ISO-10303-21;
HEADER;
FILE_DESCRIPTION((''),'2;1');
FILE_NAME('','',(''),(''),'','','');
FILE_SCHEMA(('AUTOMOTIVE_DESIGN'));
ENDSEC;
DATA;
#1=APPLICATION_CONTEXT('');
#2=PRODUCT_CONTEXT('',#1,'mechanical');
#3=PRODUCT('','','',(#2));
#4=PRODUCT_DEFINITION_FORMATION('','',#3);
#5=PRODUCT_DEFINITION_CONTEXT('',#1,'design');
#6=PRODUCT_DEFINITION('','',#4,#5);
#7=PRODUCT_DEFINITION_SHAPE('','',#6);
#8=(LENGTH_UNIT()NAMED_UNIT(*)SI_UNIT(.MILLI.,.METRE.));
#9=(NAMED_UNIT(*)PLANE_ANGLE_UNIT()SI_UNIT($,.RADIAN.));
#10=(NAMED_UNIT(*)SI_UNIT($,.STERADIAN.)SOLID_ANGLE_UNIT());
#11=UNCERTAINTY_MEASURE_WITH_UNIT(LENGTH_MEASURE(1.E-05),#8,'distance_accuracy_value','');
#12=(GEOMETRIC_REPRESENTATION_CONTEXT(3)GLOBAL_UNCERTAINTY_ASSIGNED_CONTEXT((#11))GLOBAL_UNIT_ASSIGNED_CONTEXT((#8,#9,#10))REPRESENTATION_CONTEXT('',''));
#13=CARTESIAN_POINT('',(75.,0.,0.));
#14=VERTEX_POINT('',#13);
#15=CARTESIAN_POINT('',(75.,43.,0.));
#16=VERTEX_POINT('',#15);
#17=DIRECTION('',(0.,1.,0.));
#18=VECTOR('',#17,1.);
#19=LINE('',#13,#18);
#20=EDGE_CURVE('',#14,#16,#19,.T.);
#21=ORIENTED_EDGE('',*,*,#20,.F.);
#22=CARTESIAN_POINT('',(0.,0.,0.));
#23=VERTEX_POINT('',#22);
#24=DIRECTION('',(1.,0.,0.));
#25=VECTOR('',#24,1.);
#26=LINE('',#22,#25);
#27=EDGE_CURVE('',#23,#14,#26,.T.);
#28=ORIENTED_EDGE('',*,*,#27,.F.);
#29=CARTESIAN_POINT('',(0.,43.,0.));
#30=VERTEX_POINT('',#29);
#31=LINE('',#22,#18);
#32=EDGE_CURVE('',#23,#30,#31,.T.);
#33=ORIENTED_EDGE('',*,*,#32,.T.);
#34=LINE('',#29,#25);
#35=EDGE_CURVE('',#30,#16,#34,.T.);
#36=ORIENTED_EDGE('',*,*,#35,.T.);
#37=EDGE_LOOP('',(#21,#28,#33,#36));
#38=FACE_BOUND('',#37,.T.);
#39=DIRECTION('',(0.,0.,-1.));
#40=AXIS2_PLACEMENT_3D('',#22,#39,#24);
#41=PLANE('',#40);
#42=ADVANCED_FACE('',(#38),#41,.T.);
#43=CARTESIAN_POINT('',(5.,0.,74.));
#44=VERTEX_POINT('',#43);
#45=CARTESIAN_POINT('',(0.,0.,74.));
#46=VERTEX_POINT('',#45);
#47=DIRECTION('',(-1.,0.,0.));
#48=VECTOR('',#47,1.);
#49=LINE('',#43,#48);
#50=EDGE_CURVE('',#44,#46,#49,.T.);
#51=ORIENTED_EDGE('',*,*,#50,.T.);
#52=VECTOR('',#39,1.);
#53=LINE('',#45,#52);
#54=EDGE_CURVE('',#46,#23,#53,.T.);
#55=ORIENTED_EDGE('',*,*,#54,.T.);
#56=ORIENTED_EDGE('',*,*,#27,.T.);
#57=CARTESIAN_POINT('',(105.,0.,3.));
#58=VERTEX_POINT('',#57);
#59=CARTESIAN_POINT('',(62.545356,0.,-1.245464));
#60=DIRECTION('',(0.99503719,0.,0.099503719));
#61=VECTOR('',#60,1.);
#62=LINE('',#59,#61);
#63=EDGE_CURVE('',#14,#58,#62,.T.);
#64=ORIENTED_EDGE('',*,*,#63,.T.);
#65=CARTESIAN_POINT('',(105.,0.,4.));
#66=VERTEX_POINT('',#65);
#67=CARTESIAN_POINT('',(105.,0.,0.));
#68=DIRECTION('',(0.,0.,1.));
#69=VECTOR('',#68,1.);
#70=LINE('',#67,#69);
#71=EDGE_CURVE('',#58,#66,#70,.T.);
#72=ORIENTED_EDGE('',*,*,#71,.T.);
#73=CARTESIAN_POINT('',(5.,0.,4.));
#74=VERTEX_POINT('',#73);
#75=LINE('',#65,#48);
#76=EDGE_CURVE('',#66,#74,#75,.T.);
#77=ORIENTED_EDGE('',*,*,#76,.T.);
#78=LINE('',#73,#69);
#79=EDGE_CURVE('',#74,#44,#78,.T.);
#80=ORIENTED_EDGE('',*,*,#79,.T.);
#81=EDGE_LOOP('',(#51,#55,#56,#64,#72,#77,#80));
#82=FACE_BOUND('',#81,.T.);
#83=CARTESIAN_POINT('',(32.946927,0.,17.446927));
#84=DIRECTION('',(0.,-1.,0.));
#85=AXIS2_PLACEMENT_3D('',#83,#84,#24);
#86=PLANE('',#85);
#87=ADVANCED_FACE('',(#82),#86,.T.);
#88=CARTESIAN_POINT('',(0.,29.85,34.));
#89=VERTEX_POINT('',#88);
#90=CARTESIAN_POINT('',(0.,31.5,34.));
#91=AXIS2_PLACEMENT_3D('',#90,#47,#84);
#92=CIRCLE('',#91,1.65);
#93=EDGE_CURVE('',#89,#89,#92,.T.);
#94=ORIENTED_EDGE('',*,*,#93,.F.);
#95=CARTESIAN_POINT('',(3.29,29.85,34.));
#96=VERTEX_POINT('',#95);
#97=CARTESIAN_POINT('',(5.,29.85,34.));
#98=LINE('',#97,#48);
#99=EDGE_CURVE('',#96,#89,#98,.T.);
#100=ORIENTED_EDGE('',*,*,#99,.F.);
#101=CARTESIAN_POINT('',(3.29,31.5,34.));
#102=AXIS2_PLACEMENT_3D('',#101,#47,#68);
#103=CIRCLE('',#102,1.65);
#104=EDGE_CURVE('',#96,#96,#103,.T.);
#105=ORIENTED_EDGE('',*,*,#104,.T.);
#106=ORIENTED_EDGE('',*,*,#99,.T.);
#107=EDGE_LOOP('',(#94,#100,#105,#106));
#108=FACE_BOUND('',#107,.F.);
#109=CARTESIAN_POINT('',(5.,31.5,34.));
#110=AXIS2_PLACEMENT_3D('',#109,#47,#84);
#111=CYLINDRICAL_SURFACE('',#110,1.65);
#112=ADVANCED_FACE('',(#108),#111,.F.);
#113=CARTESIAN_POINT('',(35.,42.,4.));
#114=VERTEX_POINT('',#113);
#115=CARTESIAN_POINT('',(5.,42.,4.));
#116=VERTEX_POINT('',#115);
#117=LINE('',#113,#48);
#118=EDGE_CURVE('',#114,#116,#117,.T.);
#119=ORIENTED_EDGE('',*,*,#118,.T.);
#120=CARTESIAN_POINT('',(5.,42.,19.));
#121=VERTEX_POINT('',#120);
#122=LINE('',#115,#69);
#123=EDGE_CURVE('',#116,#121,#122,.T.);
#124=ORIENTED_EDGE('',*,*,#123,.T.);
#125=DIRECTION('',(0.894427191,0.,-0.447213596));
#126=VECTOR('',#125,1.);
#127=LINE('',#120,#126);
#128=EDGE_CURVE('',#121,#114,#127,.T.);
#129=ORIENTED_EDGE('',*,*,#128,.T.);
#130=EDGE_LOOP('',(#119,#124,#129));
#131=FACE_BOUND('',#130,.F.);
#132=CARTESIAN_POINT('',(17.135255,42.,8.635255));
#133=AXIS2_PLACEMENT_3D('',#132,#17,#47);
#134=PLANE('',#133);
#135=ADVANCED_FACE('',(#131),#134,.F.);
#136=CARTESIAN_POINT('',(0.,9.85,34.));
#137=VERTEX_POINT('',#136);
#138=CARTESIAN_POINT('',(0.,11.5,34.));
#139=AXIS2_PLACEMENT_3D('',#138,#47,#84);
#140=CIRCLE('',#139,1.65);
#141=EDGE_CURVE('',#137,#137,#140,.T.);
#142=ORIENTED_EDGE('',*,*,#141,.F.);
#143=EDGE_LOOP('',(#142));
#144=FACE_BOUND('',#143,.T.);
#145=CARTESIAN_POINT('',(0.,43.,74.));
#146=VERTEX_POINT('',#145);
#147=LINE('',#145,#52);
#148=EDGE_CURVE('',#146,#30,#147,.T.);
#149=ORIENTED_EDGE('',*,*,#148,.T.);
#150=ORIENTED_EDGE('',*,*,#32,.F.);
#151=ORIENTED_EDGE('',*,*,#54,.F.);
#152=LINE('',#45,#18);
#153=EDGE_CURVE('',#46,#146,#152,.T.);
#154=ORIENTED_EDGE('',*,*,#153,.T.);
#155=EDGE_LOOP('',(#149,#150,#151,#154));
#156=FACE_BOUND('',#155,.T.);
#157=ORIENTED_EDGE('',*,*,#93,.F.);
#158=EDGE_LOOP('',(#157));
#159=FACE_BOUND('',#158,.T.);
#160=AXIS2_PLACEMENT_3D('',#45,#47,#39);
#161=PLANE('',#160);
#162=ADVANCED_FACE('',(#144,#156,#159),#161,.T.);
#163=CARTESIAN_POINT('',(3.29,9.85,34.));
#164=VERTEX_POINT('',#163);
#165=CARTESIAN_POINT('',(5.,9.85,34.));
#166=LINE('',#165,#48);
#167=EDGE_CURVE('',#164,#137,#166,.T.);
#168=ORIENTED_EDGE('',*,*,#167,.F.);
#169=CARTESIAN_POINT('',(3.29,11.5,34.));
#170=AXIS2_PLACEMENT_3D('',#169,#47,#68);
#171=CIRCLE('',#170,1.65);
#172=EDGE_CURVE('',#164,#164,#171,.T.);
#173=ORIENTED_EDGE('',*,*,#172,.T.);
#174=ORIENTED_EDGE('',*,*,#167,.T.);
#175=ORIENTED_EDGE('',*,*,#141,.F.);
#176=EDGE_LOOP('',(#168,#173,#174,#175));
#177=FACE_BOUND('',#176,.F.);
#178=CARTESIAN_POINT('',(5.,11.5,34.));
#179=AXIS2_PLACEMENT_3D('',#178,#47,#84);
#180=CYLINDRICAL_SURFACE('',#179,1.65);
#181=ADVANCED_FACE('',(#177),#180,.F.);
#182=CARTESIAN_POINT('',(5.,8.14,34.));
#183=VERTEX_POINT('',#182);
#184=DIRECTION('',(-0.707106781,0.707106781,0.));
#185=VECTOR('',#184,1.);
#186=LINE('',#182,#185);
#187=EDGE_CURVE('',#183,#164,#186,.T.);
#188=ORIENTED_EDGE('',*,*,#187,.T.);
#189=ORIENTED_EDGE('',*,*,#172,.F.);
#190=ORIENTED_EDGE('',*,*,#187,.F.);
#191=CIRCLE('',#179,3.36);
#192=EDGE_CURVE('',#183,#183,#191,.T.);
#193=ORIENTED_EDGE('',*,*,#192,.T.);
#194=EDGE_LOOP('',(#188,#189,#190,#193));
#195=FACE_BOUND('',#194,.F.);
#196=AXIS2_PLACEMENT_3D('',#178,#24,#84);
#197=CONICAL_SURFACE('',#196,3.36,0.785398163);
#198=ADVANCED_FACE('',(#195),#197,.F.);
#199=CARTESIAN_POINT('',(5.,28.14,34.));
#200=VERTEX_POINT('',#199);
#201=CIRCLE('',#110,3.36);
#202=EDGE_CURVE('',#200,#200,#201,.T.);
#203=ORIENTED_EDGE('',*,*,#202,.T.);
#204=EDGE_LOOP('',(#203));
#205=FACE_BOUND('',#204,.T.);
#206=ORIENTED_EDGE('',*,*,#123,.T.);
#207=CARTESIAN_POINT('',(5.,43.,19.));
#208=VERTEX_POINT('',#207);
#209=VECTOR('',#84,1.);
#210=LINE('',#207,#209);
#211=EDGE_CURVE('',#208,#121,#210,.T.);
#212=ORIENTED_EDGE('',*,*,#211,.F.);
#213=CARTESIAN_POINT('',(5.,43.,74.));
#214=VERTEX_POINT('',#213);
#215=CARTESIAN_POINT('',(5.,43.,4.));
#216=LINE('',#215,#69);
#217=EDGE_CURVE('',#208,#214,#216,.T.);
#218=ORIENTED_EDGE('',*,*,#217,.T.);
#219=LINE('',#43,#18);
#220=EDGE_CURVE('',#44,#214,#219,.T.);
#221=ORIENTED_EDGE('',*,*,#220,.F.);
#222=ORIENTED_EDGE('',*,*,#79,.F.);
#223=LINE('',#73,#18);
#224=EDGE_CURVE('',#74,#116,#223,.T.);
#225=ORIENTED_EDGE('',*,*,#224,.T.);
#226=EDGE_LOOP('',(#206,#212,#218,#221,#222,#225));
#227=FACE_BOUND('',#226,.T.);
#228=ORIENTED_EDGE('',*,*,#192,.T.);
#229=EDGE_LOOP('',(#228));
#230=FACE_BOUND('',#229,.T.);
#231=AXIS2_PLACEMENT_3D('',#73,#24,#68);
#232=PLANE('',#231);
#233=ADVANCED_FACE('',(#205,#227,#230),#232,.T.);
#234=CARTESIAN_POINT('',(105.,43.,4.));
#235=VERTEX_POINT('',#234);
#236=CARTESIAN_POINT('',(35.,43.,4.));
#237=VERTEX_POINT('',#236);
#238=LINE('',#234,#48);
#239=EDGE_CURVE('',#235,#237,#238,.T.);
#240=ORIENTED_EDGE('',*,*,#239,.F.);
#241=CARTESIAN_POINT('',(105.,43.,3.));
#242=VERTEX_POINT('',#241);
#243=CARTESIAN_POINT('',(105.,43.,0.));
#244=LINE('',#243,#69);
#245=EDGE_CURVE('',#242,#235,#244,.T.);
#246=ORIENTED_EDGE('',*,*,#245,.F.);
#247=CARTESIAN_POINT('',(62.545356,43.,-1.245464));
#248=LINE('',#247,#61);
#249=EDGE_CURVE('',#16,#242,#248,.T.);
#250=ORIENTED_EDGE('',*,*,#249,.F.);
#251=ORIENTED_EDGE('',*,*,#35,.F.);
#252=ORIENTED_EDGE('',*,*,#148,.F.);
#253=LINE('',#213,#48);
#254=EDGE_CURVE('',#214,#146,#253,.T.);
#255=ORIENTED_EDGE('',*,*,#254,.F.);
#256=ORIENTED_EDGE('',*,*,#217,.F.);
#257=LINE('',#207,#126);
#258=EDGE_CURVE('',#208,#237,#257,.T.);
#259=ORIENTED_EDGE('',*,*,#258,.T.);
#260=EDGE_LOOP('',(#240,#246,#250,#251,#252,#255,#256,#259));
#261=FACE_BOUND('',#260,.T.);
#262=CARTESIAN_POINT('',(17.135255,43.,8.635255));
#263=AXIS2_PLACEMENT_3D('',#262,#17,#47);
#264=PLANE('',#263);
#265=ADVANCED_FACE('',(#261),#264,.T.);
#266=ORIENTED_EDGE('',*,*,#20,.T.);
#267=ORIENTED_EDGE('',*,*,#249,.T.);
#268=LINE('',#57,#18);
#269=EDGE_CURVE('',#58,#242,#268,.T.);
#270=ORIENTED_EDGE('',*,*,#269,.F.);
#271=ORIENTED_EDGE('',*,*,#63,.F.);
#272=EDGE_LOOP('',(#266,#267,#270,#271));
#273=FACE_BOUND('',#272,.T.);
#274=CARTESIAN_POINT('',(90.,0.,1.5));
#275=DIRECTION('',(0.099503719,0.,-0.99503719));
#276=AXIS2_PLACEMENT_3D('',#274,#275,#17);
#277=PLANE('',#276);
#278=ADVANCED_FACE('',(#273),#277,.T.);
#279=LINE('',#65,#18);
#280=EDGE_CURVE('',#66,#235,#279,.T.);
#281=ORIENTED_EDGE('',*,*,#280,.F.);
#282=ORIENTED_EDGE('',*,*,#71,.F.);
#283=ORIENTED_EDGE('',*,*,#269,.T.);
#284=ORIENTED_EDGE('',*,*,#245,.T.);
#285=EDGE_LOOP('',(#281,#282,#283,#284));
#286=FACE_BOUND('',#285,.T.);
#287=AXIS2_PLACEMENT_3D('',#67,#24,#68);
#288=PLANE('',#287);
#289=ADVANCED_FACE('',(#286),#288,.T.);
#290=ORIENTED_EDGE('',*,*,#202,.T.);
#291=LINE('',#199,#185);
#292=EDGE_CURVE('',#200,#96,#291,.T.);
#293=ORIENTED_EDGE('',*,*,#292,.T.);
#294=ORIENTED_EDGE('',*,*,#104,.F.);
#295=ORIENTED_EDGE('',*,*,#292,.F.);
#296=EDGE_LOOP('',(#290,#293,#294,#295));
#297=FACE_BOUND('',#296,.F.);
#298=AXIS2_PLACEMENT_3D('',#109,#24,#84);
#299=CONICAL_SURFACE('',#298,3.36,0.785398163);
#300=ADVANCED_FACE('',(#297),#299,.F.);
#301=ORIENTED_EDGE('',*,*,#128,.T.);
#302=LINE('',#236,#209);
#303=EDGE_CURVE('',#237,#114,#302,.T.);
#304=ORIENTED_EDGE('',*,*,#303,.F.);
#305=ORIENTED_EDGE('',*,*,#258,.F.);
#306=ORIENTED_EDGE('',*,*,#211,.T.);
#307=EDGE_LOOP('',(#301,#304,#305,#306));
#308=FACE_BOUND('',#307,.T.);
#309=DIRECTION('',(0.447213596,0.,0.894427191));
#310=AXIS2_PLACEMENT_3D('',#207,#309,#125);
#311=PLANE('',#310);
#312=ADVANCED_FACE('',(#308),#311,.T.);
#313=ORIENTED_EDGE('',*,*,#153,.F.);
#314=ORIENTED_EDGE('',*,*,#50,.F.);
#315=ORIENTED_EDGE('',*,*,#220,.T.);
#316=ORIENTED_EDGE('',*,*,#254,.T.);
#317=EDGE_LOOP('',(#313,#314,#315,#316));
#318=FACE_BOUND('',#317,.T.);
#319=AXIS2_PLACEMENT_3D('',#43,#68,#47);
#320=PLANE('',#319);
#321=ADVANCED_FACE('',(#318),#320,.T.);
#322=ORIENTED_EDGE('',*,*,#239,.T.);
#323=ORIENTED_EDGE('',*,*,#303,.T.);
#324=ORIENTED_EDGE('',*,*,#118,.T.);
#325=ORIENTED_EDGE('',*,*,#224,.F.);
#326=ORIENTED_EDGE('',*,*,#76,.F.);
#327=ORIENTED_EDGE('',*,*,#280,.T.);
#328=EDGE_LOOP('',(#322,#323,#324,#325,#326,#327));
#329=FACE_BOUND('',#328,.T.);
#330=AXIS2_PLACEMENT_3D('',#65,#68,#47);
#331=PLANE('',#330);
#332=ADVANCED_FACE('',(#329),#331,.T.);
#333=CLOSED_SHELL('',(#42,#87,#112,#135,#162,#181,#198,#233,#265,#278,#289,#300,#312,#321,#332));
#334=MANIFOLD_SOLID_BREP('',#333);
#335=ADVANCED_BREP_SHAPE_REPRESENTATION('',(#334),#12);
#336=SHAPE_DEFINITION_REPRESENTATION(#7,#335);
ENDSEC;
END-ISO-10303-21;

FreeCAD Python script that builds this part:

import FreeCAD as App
import Part
import Sketcher


def edges_at(feature, points):
    """Names of the edges that pass closest to the given points."""
    edges = feature.Shape.Edges
    near = lambda p: min(range(len(edges)), key=lambda i: edges[i].distToShape(Part.Vertex(*p))[0])
    return sorted({f"Edge{near(p) + 1}" for p in points})


def add_polygon(sketch, points):
    """Adds a closed chain of lines whose ends are joined by coincident constraints."""
    first, n = sketch.GeometryCount, len(points)
    for a, b in zip(points, points[1:] + points[:1]):
        sketch.addGeometry(Part.LineSegment(App.Vector(*a, 0), App.Vector(*b, 0)), False)
    for i in range(n):
        sketch.addConstraint(Sketcher.Constraint("Coincident", first + i, 2, first + (i + 1) % n, 1))

doc = App.newDocument("Part")
body = doc.addObject("PartDesign::Body", "Body")

sketch1 = body.newObject("Sketcher::SketchObject", "Sketch")
sketch1.AttachmentSupport = (doc.getObject("XZ_Plane"), [""])
sketch1.MapMode = "FlatFace"
add_polygon(sketch1, [(0, 74), (0, 0), (105, 0), (105, 4), (5, 4), (5, 74)])
sketch1.addConstraint(Sketcher.Constraint("Vertical", 0))
sketch1.addConstraint(Sketcher.Constraint("Horizontal", 1))
sketch1.addConstraint(Sketcher.Constraint("Vertical", 2))
sketch1.addConstraint(Sketcher.Constraint("Horizontal", 3))
sketch1.addConstraint(Sketcher.Constraint("Vertical", 4))
sketch1.addConstraint(Sketcher.Constraint("Horizontal", 5))
sketch1.addConstraint(Sketcher.Constraint("Coincident", 0, 2, -1, 1))
sketch1.addConstraint(Sketcher.Constraint("DistanceX", 1, 1, 1, 2, 105.0))
sketch1.addConstraint(Sketcher.Constraint("DistanceX", 3, 2, 3, 1, 100.0))
sketch1.addConstraint(Sketcher.Constraint("DistanceY", 0, 2, 0, 1, 74.0))
sketch1.addConstraint(Sketcher.Constraint("DistanceY", 2, 1, 2, 2, 4.0))
pad1 = body.newObject("PartDesign::Pad", "Pad")
pad1.Profile = sketch1
pad1.Length = 43
pad1.Reversed = True

sketch2 = body.newObject("Sketcher::SketchObject", "Sketch001")
sketch2.AttachmentSupport = (doc.getObject("YZ_Plane"), [""])
sketch2.MapMode = "FlatFace"
sketch2.AttachmentOffset = App.Placement(App.Vector(0, 0, 5), App.Rotation())
sketch2.addGeometry(Part.Circle(App.Vector(31.5, 34, 0), App.Vector(0, 0, 1), 1.6), False)
sketch2.addGeometry(Part.Circle(App.Vector(11.5, 34, 0), App.Vector(0, 0, 1), 1.6), False)
sketch2.addConstraint(Sketcher.Constraint("Equal", 0, 1))
sketch2.addConstraint(Sketcher.Constraint("Horizontal", 0, 3, 1, 3))
sketch2.addConstraint(Sketcher.Constraint("Diameter", 0, 3.3))
sketch2.addConstraint(Sketcher.Constraint("DistanceY", -1, 1, 0, 3, 34.0))
sketch2.addConstraint(Sketcher.Constraint("DistanceX", 1, 3, 0, 3, 20.0))
sketch2.addConstraint(Sketcher.Constraint("DistanceX", -1, 1, 0, 3, 31.5))
doc.recompute()
hole = body.newObject("PartDesign::Hole", "Hole")
hole.Profile = sketch2
hole.ThreadType = "None"
hole.Diameter = 3.3
hole.DepthType = "ThroughAll"
hole.HoleCutType = "Countersink"
hole.HoleCutDiameter = 6.72
hole.HoleCutCountersinkAngle = 90
doc.recompute()

chamfer = body.newObject("PartDesign::Chamfer", "Chamfer")
chamfer.Base = (hole, edges_at(hole, [(105, 21.5, 0)]))
chamfer.ChamferType = "Two distances"
chamfer.Size = 30
chamfer.Size2 = 3

sketch3 = body.newObject("Sketcher::SketchObject", "Sketch002")
sketch3.AttachmentSupport = (doc.getObject("XZ_Plane"), [""])
sketch3.MapMode = "FlatFace"
sketch3.AttachmentOffset = App.Placement(App.Vector(0, 0, -43), App.Rotation())
add_polygon(sketch3, [(35, 4), (5, 4), (5, 19)])
sketch3.addConstraint(Sketcher.Constraint("Horizontal", 0))
sketch3.addConstraint(Sketcher.Constraint("Vertical", 1))
sketch3.addConstraint(Sketcher.Constraint("DistanceX", 0, 2, 0, 1, 30.0))
sketch3.addConstraint(Sketcher.Constraint("DistanceY", 1, 1, 1, 2, 15.0))
sketch3.addConstraint(Sketcher.Constraint("DistanceX", -1, 1, 0, 2, 5.0))
sketch3.addConstraint(Sketcher.Constraint("DistanceY", -1, 1, 0, 2, 4.0))
pad2 = body.newObject("PartDesign::Pad", "Pad001")
pad2.Profile = sketch3
pad2.Length = 1

doc.recompute()
